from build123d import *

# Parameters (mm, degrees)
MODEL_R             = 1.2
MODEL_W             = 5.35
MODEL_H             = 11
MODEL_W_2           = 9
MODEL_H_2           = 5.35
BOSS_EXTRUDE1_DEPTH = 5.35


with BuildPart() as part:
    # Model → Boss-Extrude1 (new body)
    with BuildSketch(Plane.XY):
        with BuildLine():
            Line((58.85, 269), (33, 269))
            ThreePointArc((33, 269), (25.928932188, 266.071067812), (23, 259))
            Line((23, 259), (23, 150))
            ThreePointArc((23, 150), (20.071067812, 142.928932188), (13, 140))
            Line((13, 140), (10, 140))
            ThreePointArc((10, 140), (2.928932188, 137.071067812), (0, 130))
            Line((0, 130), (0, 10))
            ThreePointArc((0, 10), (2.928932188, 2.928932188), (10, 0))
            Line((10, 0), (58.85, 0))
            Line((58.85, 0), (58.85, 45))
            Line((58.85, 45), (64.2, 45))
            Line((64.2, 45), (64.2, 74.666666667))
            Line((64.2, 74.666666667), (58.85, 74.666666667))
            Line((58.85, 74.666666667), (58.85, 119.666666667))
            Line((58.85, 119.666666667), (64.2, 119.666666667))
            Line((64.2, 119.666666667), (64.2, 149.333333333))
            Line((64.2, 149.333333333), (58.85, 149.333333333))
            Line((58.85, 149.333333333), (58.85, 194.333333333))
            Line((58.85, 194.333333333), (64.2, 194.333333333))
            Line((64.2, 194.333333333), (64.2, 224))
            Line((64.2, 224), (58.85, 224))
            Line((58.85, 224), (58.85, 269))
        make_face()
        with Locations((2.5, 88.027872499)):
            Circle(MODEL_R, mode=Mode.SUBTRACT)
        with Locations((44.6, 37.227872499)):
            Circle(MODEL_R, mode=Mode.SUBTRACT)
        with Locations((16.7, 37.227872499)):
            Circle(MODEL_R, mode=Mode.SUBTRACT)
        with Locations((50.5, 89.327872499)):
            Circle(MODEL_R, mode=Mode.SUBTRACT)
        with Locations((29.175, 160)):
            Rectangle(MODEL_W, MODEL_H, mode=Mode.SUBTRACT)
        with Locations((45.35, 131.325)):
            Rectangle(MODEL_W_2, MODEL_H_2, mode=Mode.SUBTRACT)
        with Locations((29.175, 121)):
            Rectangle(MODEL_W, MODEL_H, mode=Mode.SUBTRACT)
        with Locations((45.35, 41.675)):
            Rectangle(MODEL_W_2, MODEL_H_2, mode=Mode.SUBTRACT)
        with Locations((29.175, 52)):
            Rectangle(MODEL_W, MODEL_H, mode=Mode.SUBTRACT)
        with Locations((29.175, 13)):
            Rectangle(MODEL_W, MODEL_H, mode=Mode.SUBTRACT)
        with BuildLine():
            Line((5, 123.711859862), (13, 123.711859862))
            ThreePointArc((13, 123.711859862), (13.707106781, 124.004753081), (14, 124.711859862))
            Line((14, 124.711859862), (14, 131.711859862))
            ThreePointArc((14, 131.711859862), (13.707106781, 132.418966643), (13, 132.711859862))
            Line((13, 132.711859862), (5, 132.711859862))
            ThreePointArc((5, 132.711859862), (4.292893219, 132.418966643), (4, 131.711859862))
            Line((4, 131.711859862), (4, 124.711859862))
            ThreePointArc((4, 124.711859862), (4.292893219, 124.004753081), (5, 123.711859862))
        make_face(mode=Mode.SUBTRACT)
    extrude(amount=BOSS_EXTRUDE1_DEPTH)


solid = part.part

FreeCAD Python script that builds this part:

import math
import FreeCAD as App
import Part
import Sketcher
from FreeCAD import Vector
Q = App.Units.Quantity

doc = App.newDocument("Part")
body = doc.addObject("PartDesign::Body", "Body")

sketch1 = body.newObject("Sketcher::SketchObject", "Sketch")
sketch1.AttachmentSupport = (doc.getObject("XY_Plane"), [""])
sketch1.MapMode = "FlatFace"
sketch1.addGeometry(Part.LineSegment(Vector(58.9, 269, 0), Vector(33, 269, 0)), False)
sketch1.addGeometry(Part.ArcOfCircle(Part.Circle(Vector(33, 259, 0), Vector(0, 0, 1), 10), math.radians(90), math.radians(180)), False)
sketch1.addGeometry(Part.LineSegment(Vector(23, 259, 0), Vector(23, 150, 0)), False)
sketch1.addGeometry(Part.ArcOfCircle(Part.Circle(Vector(13, 150, 0), Vector(0, 0, 1), 10), math.radians(-90), math.radians(0)), False)
sketch1.addGeometry(Part.LineSegment(Vector(13, 140, 0), Vector(10, 140, 0)), False)
sketch1.addGeometry(Part.ArcOfCircle(Part.Circle(Vector(10, 130, 0), Vector(0, 0, 1), 10), math.radians(90), math.radians(180)), False)
sketch1.addGeometry(Part.LineSegment(Vector(0, 130, 0), Vector(0, 10, 0)), False)
sketch1.addGeometry(Part.ArcOfCircle(Part.Circle(Vector(10, 10, 0), Vector(0, 0, 1), 10), math.radians(180), math.radians(270)), False)
sketch1.addGeometry(Part.LineSegment(Vector(10, 0, 0), Vector(58.9, 0, 0)), False)
sketch1.addGeometry(Part.LineSegment(Vector(58.9, 0, 0), Vector(58.9, 45, 0)), False)
sketch1.addGeometry(Part.LineSegment(Vector(58.9, 45, 0), Vector(64.2, 45, 0)), False)
sketch1.addGeometry(Part.LineSegment(Vector(64.2, 45, 0), Vector(64.2, 74.7, 0)), False)
sketch1.addGeometry(Part.LineSegment(Vector(64.2, 74.7, 0), Vector(58.9, 74.7, 0)), False)
sketch1.addGeometry(Part.LineSegment(Vector(58.9, 74.7, 0), Vector(58.9, 119.7, 0)), False)
sketch1.addGeometry(Part.LineSegment(Vector(58.9, 119.7, 0), Vector(64.2, 119.7, 0)), False)
sketch1.addGeometry(Part.LineSegment(Vector(64.2, 119.7, 0), Vector(64.2, 149.3, 0)), False)
sketch1.addGeometry(Part.LineSegment(Vector(64.2, 149.3, 0), Vector(58.9, 149.3, 0)), False)
sketch1.addGeometry(Part.LineSegment(Vector(58.9, 149.3, 0), Vector(58.9, 194.3, 0)), False)
sketch1.addGeometry(Part.LineSegment(Vector(58.9, 194.3, 0), Vector(64.2, 194.3, 0)), False)
sketch1.addGeometry(Part.LineSegment(Vector(64.2, 194.3, 0), Vector(64.2, 224, 0)), False)
sketch1.addGeometry(Part.LineSegment(Vector(64.2, 224, 0), Vector(58.9, 224, 0)), False)
sketch1.addGeometry(Part.LineSegment(Vector(58.9, 224, 0), Vector(58.9, 269, 0)), False)
sketch1.addGeometry(Part.Circle(Vector(16.7, 37.2, 0), Vector(0, 0, 1), 1.2), False)
sketch1.addGeometry(Part.LineSegment(Vector(31.9, 7.5, 0), Vector(26.5, 7.5, 0)), False)
sketch1.addGeometry(Part.LineSegment(Vector(26.5, 7.5, 0), Vector(26.5, 18.5, 0)), False)
sketch1.addGeometry(Part.LineSegment(Vector(26.5, 18.5, 0), Vector(31.9, 18.5, 0)), False)
sketch1.addGeometry(Part.LineSegment(Vector(31.9, 18.5, 0), Vector(31.9, 7.5, 0)), False)
sketch1.addGeometry(Part.Circle(Vector(44.6, 37.2, 0), Vector(0, 0, 1), 1.2), False)
sketch1.addGeometry(Part.LineSegment(Vector(49.9, 39, 0), Vector(40.9, 39, 0)), False)
sketch1.addGeometry(Part.LineSegment(Vector(40.9, 39, 0), Vector(40.9, 44.4, 0)), False)
sketch1.addGeometry(Part.LineSegment(Vector(40.9, 44.4, 0), Vector(49.9, 44.4, 0)), False)
sketch1.addGeometry(Part.LineSegment(Vector(49.9, 44.4, 0), Vector(49.9, 39, 0)), False)
sketch1.addGeometry(Part.LineSegment(Vector(31.9, 46.5, 0), Vector(26.5, 46.5, 0)), False)
sketch1.addGeometry(Part.LineSegment(Vector(26.5, 46.5, 0), Vector(26.5, 57.5, 0)), False)
sketch1.addGeometry(Part.LineSegment(Vector(26.5, 57.5, 0), Vector(31.9, 57.5, 0)), False)
sketch1.addGeometry(Part.LineSegment(Vector(31.9, 57.5, 0), Vector(31.9, 46.5, 0)), False)
sketch1.addGeometry(Part.Circle(Vector(2.5, 88, 0), Vector(0, 0, 1), 1.2), False)
sketch1.addGeometry(Part.LineSegment(Vector(13, 123.7, 0), Vector(5, 123.7, 0)), False)
sketch1.addGeometry(Part.ArcOfCircle(Part.Circle(Vector(5, 124.7, 0), Vector(0, 0, 1), 1), math.radians(-180), math.radians(-90)), False)
sketch1.addGeometry(Part.LineSegment(Vector(4, 124.7, 0), Vector(4, 131.7, 0)), False)
sketch1.addGeometry(Part.ArcOfCircle(Part.Circle(Vector(5, 131.7, 0), Vector(0, 0, 1), 1), math.radians(90), math.radians(180)), False)
sketch1.addGeometry(Part.LineSegment(Vector(5, 132.7, 0), Vector(13, 132.7, 0)), False)
sketch1.addGeometry(Part.ArcOfCircle(Part.Circle(Vector(13, 131.7, 0), Vector(0, 0, 1), 1), math.radians(0), math.radians(90)), False)
sketch1.addGeometry(Part.LineSegment(Vector(14, 131.7, 0), Vector(14, 124.7, 0)), False)
sketch1.addGeometry(Part.ArcOfCircle(Part.Circle(Vector(13, 124.7, 0), Vector(0, 0, 1), 1), math.radians(-90), math.radians(0)), False)
sketch1.addGeometry(Part.LineSegment(Vector(31.9, 115.5, 0), Vector(26.5, 115.5, 0)), False)
sketch1.addGeometry(Part.LineSegment(Vector(26.5, 115.5, 0), Vector(26.5, 126.5, 0)), False)
sketch1.addGeometry(Part.LineSegment(Vector(26.5, 126.5, 0), Vector(31.9, 126.5, 0)), False)
sketch1.addGeometry(Part.LineSegment(Vector(31.9, 126.5, 0), Vector(31.9, 115.5, 0)), False)
sketch1.addGeometry(Part.Circle(Vector(50.5, 89.3, 0), Vector(0, 0, 1), 1.2), False)
sketch1.addGeometry(Part.LineSegment(Vector(31.9, 154.5, 0), Vector(26.5, 154.5, 0)), False)
sketch1.addGeometry(Part.LineSegment(Vector(26.5, 154.5, 0), Vector(26.5, 165.5, 0)), False)
sketch1.addGeometry(Part.LineSegment(Vector(26.5, 165.5, 0), Vector(31.9, 165.5, 0)), False)
sketch1.addGeometry(Part.LineSegment(Vector(31.9, 165.5, 0), Vector(31.9, 154.5, 0)), False)
sketch1.addGeometry(Part.LineSegment(Vector(49.9, 128.7, 0), Vector(40.9, 128.7, 0)), False)
sketch1.addGeometry(Part.LineSegment(Vector(40.9, 128.7, 0), Vector(40.9, 134, 0)), False)
sketch1.addGeometry(Part.LineSegment(Vector(40.9, 134, 0), Vector(49.9, 134, 0)), False)
sketch1.addGeometry(Part.LineSegment(Vector(49.9, 134, 0), Vector(49.9, 128.7, 0)), False)
sketch1.addConstraint(Sketcher.Constraint("Tangent", 0, 2, 1, 1))
sketch1.addConstraint(Sketcher.Constraint("Tangent", 1, 2, 2, 1))
sketch1.addConstraint(Sketcher.Constraint("Tangent", 2, 2, 3, 2))
sketch1.addConstraint(Sketcher.Constraint("Tangent", 3, 1, 4, 1))
sketch1.addConstraint(Sketcher.Constraint("Tangent", 4, 2, 5, 1))
sketch1.addConstraint(Sketcher.Constraint("Tangent", 5, 2, 6, 1))
sketch1.addConstraint(Sketcher.Constraint("Tangent", 6, 2, 7, 1))
sketch1.addConstraint(Sketcher.Constraint("Tangent", 7, 2, 8, 1))
sketch1.addConstraint(Sketcher.Constraint("Coincident", 8, 2, 9, 1))
sketch1.addConstraint(Sketcher.Constraint("Coincident", 9, 2, 10, 1))
sketch1.addConstraint(Sketcher.Constraint("Coincident", 10, 2, 11, 1))
sketch1.addConstraint(Sketcher.Constraint("Coincident", 11, 2, 12, 1))
sketch1.addConstraint(Sketcher.Constraint("Coincident", 12, 2, 13, 1))
sketch1.addConstraint(Sketcher.Constraint("Coincident", 13, 2, 14, 1))
sketch1.addConstraint(Sketcher.Constraint("Coincident", 14, 2, 15, 1))
sketch1.addConstraint(Sketcher.Constraint("Coincident", 15, 2, 16, 1))
sketch1.addConstraint(Sketcher.Constraint("Coincident", 16, 2, 17, 1))
sketch1.addConstraint(Sketcher.Constraint("Coincident", 17, 2, 18, 1))
sketch1.addConstraint(Sketcher.Constraint("Coincident", 18, 2, 19, 1))
sketch1.addConstraint(Sketcher.Constraint("Coincident", 19, 2, 20, 1))
sketch1.addConstraint(Sketcher.Constraint("Coincident", 20, 2, 21, 1))
sketch1.addConstraint(Sketcher.Constraint("Coincident", 21, 2, 0, 1))
sketch1.addConstraint(Sketcher.Constraint("Coincident", 23, 2, 24, 1))
sketch1.addConstraint(Sketcher.Constraint("Coincident", 24, 2, 25, 1))
sketch1.addConstraint(Sketcher.Constraint("Coincident", 25, 2, 26, 1))
sketch1.addConstraint(Sketcher.Constraint("Coincident", 26, 2, 23, 1))
sketch1.addConstraint(Sketcher.Constraint("Coincident", 28, 2, 29, 1))
sketch1.addConstraint(Sketcher.Constraint("Coincident", 29, 2, 30, 1))
sketch1.addConstraint(Sketcher.Constraint("Coincident", 30, 2, 31, 1))
sketch1.addConstraint(Sketcher.Constraint("Coincident", 31, 2, 28, 1))
sketch1.addConstraint(Sketcher.Constraint("Coincident", 32, 2, 33, 1))
sketch1.addConstraint(Sketcher.Constraint("Coincident", 33, 2, 34, 1))
sketch1.addConstraint(Sketcher.Constraint("Coincident", 34, 2, 35, 1))
sketch1.addConstraint(Sketcher.Constraint("Coincident", 35, 2, 32, 1))
sketch1.addConstraint(Sketcher.Constraint("Tangent", 37, 2, 38, 2))
sketch1.addConstraint(Sketcher.Constraint("Tangent", 38, 1, 39, 1))
sketch1.addConstraint(Sketcher.Constraint("Tangent", 39, 2, 40, 2))
sketch1.addConstraint(Sketcher.Constraint("Tangent", 40, 1, 41, 1))
sketch1.addConstraint(Sketcher.Constraint("Tangent", 41, 2, 42, 2))
sketch1.addConstraint(Sketcher.Constraint("Tangent", 42, 1, 43, 1))
sketch1.addConstraint(Sketcher.Constraint("Tangent", 43, 2, 44, 2))
sketch1.addConstraint(Sketcher.Constraint("Tangent", 44, 1, 37, 1))
sketch1.addConstraint(Sketcher.Constraint("Coincident", 45, 2, 46, 1))
sketch1.addConstraint(Sketcher.Constraint("Coincident", 46, 2, 47, 1))
sketch1.addConstraint(Sketcher.Constraint("Coincident", 47, 2, 48, 1))
sketch1.addConstraint(Sketcher.Constraint("Coincident", 48, 2, 45, 1))
sketch1.addConstraint(Sketcher.Constraint("Coincident", 50, 2, 51, 1))
sketch1.addConstraint(Sketcher.Constraint("Coincident", 51, 2, 52, 1))
sketch1.addConstraint(Sketcher.Constraint("Coincident", 52, 2, 53, 1))
sketch1.addConstraint(Sketcher.Constraint("Coincident", 53, 2, 50, 1))
sketch1.addConstraint(Sketcher.Constraint("Coincident", 54, 2, 55, 1))
sketch1.addConstraint(Sketcher.Constraint("Coincident", 55, 2, 56, 1))
sketch1.addConstraint(Sketcher.Constraint("Coincident", 56, 2, 57, 1))
sketch1.addConstraint(Sketcher.Constraint("Coincident", 57, 2, 54, 1))
sketch1.addConstraint(Sketcher.Constraint("Horizontal", 0))
sketch1.addConstraint(Sketcher.Constraint("Vertical", 2))
sketch1.addConstraint(Sketcher.Constraint("Horizontal", 4))
sketch1.addConstraint(Sketcher.Constraint("Vertical", 6))
sketch1.addConstraint(Sketcher.Constraint("Horizontal", 8))
sketch1.addConstraint(Sketcher.Constraint("Vertical", 9))
sketch1.addConstraint(Sketcher.Constraint("Horizontal", 10))
sketch1.addConstraint(Sketcher.Constraint("Vertical", 11))
sketch1.addConstraint(Sketcher.Constraint("Horizontal", 12))
sketch1.addConstraint(Sketcher.Constraint("Vertical", 13))
sketch1.addConstraint(Sketcher.Constraint("Horizontal", 14))
sketch1.addConstraint(Sketcher.Constraint("Vertical", 15))
sketch1.addConstraint(Sketcher.Constraint("Horizontal", 16))
sketch1.addConstraint(Sketcher.Constraint("Vertical", 17))
sketch1.addConstraint(Sketcher.Constraint("Horizontal", 18))
sketch1.addConstraint(Sketcher.Constraint("Vertical", 19))
sketch1.addConstraint(Sketcher.Constraint("Horizontal", 20))
sketch1.addConstraint(Sketcher.Constraint("Vertical", 21))
sketch1.addConstraint(Sketcher.Constraint("Horizontal", 23))
sketch1.addConstraint(Sketcher.Constraint("Vertical", 24))
sketch1.addConstraint(Sketcher.Constraint("Horizontal", 25))
sketch1.addConstraint(Sketcher.Constraint("Vertical", 26))
sketch1.addConstraint(Sketcher.Constraint("Horizontal", 28))
sketch1.addConstraint(Sketcher.Constraint("Vertical", 29))
sketch1.addConstraint(Sketcher.Constraint("Horizontal", 30))
sketch1.addConstraint(Sketcher.Constraint("Vertical", 31))
sketch1.addConstraint(Sketcher.Constraint("Horizontal", 32))
sketch1.addConstraint(Sketcher.Constraint("Vertical", 33))
sketch1.addConstraint(Sketcher.Constraint("Horizontal", 34))
sketch1.addConstraint(Sketcher.Constraint("Vertical", 35))
sketch1.addConstraint(Sketcher.Constraint("Horizontal", 37))
sketch1.addConstraint(Sketcher.Constraint("Vertical", 39))
sketch1.addConstraint(Sketcher.Constraint("Horizontal", 41))
sketch1.addConstraint(Sketcher.Constraint("Vertical", 43))
sketch1.addConstraint(Sketcher.Constraint("Horizontal", 45))
sketch1.addConstraint(Sketcher.Constraint("Vertical", 46))
sketch1.addConstraint(Sketcher.Constraint("Horizontal", 47))
sketch1.addConstraint(Sketcher.Constraint("Vertical", 48))
sketch1.addConstraint(Sketcher.Constraint("Horizontal", 50))
sketch1.addConstraint(Sketcher.Constraint("Vertical", 51))
sketch1.addConstraint(Sketcher.Constraint("Horizontal", 52))
sketch1.addConstraint(Sketcher.Constraint("Vertical", 53))
sketch1.addConstraint(Sketcher.Constraint("Horizontal", 54))
sketch1.addConstraint(Sketcher.Constraint("Vertical", 55))
sketch1.addConstraint(Sketcher.Constraint("Horizontal", 56))
sketch1.addConstraint(Sketcher.Constraint("Vertical", 57))
sketch1.addConstraint(Sketcher.Constraint("Equal", 1, 3))
sketch1.addConstraint(Sketcher.Constraint("Equal", 3, 5))
sketch1.addConstraint(Sketcher.Constraint("Equal", 5, 7))
sketch1.addConstraint(Sketcher.Constraint("Equal", 22, 27))
sketch1.addConstraint(Sketcher.Constraint("Equal", 27, 36))
sketch1.addConstraint(Sketcher.Constraint("Equal", 38, 40))
sketch1.addConstraint(Sketcher.Constraint("Equal", 40, 42))
sketch1.addConstraint(Sketcher.Constraint("Equal", 42, 44))
sketch1.addConstraint(Sketcher.Constraint("Equal", 36, 49))
sketch1.addConstraint(Sketcher.Constraint("PointOnObject", 5, 2, -2))
sketch1.addConstraint(Sketcher.Constraint("PointOnObject", 7, 2, -1))
sketch1.addConstraint(Sketcher.Constraint("Horizontal", 22, 3, 27, 3))
sketch1.addConstraint(Sketcher.Constraint("Vertical", 3, 3, 42, 3))
sketch1.addConstraint(Sketcher.Constraint("Vertical", 9, 2, 12, 2))
sketch1.addConstraint(Sketcher.Constraint("Vertical", 11, 2, 14, 2))
sketch1.addConstraint(Sketcher.Constraint("Vertical", 13, 2, 16, 2))
sketch1.addConstraint(Sketcher.Constraint("Vertical", 15, 2, 18, 2))
sketch1.addConstraint(Sketcher.Constraint("Vertical", 17, 2, 20, 2))
sketch1.addConstraint(Sketcher.Constraint("Vertical", 24, 2, 32, 2))
sketch1.addConstraint(Sketcher.Constraint("Vertical", 26, 2, 34, 2))
sketch1.addConstraint(Sketcher.Constraint("Vertical", 33, 2, 45, 2))
sketch1.addConstraint(Sketcher.Constraint("Vertical", 35, 2, 47, 2))
sketch1.addConstraint(Sketcher.Constraint("Vertical", 46, 2, 50, 2))
sketch1.addConstraint(Sketcher.Constraint("Vertical", 48, 2, 52, 2))
sketch1.addConstraint(Sketcher.Constraint("Vertical", 29, 2, 54, 2))
sketch1.addConstraint(Sketcher.Constraint("Vertical", 31, 2, 56, 2))
sketch1.addConstraint(Sketcher.Constraint("Equal", 20, 23))
sketch1.addConstraint(Sketcher.Constraint("Equal", 9, 13))
sketch1.addConstraint(Sketcher.Constraint("Equal", 11, 15))
sketch1.addConstraint(Sketcher.Constraint("Equal", 13, 17))
sketch1.addConstraint(Sketcher.Constraint("Equal", 15, 19))
sketch1.addConstraint(Sketcher.Constraint("Equal", 17, 21))
sketch1.addConstraint(Sketcher.Constraint("Equal", 52, 29))
sketch1.addConstraint(Sketcher.Constraint("Equal", 26, 33))
sketch1.addConstraint(Sketcher.Constraint("Equal", 35, 46))
sketch1.addConstraint(Sketcher.Constraint("Equal", 48, 51))
sketch1.addConstraint(Sketcher.Constraint("Equal", 31, 55))
sketch1.addConstraint(Sketcher.Constraint("Radius", 1, Q("10 mm")))
sketch1.addConstraint(Sketcher.Constraint("Radius", 38, Q("1 mm")))
sketch1.addConstraint(Sketcher.Constraint("Diameter", 22, Q("2.4 mm")))
sketch1.addConstraint(Sketcher.Constraint("DistanceX", 4, 2, 4, 1, Q("3 mm")))
sketch1.addConstraint(Sketcher.Constraint("DistanceX", 28, 2, 28, 1, Q("9 mm")))
sketch1.addConstraint(Sketcher.Constraint("DistanceX", 37, 2, 37, 1, Q("8 mm")))
sketch1.addConstraint(Sketcher.Constraint("DistanceY", 2, 2, 2, 1, Q("109 mm")))
sketch1.addConstraint(Sketcher.Constraint("DistanceY", 6, 2, 6, 1, Q("120 mm")))
sketch1.addConstraint(Sketcher.Constraint("DistanceY", 9, 1, 9, 2, Q("45 mm")))
sketch1.addConstraint(Sketcher.Constraint("DistanceY", 24, 1, 24, 2, Q("11 mm")))
sketch1.addConstraint(Sketcher.Constraint("DistanceY", 39, 1, 39, 2, Q("7 mm")))
sketch1.addConstraint(Sketcher.Constraint("DistanceY", -1, 1, 28, 2, Q("39 mm")))
sketch1.addConstraint(Sketcher.Constraint("DistanceY", -1, 1, 55, 2, Q("134 mm")))
sketch1.addConstraint(Sketcher.Constraint("DistanceX", 0, 2, 0, 1, Q("25.85 mm")))
sketch1.addConstraint(Sketcher.Constraint("DistanceX", 10, 1, 10, 2, Q("5.35 mm")))
sketch1.addConstraint(Sketcher.Constraint("DistanceX", -1, 1, 22, 3, Q("16.7 mm")))
sketch1.addConstraint(Sketcher.Constraint("DistanceX", -1, 1, 27, 3, Q("44.6 mm")))
sketch1.addConstraint(Sketcher.Constraint("DistanceX", -1, 1, 36, 3, Q("2.5 mm")))
sketch1.addConstraint(Sketcher.Constraint("DistanceX", -1, 1, 49, 3, Q("50.5 mm")))
sketch1.addConstraint(Sketcher.Constraint("DistanceX", -1, 1, 23, 2, Q("26.5 mm")))
sketch1.addConstraint(Sketcher.Constraint("DistanceY", -1, 1, 23, 2, Q("7.5 mm")))
sketch1.addConstraint(Sketcher.Constraint("DistanceY", -1, 1, 32, 2, Q("46.5 mm")))
sketch1.addConstraint(Sketcher.Constraint("DistanceY", -1, 1, 45, 2, Q("115.5 mm")))
sketch1.addConstraint(Sketcher.Constraint("DistanceY", -1, 1, 50, 2, Q("154.5 mm")))
sketch1.addConstraint(Sketcher.Constraint("DistanceX", -1, 1, 28, 2, Q("40.85 mm")))
sketch1.addConstraint(Sketcher.Constraint("DistanceY", -1, 1, 38, 3, Q("124.71186 mm")))
sketch1.addConstraint(Sketcher.Constraint("DistanceY", -1, 1, 22, 3, Q("37.227872 mm")))
sketch1.addConstraint(Sketcher.Constraint("DistanceY", -1, 1, 36, 3, Q("88.027872 mm")))
sketch1.addConstraint(Sketcher.Constraint("DistanceY", -1, 1, 49, 3, Q("89.327872 mm")))
pad1 = body.newObject("PartDesign::Pad", "Pad")
pad1.Profile = sketch1
pad1.Length = 5.35

doc.recompute()
